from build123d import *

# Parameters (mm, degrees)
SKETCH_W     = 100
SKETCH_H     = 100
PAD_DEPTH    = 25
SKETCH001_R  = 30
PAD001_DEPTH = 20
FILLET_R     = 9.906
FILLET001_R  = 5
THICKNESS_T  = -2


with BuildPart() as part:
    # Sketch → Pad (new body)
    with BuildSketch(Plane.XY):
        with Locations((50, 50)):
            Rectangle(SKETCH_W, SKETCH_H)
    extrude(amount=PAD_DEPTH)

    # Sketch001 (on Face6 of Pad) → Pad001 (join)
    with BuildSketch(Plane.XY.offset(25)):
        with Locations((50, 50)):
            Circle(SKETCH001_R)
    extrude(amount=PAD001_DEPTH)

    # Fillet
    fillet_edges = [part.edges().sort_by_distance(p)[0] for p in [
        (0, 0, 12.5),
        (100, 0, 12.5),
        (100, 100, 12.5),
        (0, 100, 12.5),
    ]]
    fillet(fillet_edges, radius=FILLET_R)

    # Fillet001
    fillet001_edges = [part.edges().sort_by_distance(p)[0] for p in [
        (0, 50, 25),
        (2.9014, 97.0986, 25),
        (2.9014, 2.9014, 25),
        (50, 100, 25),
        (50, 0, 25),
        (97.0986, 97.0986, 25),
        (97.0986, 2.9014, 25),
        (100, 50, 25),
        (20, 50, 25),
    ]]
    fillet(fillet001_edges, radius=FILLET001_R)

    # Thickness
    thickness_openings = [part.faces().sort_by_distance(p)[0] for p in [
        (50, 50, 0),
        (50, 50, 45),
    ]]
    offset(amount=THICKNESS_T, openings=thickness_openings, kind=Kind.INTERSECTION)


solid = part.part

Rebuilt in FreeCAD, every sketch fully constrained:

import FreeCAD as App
import Part
import Sketcher
from FreeCAD import Vector
Q = App.Units.Quantity


def edges_at(feature, points):
    """Names of the edges that pass closest to the given points."""
    edges = feature.Shape.Edges
    near = lambda p: min(range(len(edges)), key=lambda i: edges[i].distToShape(Part.Vertex(*p))[0])
    return sorted({f"Edge{near(p) + 1}" for p in points})


def faces_at(feature, points):
    """Names of the faces that lie closest to the given points."""
    faces = feature.Shape.Faces
    near = lambda p: min(range(len(faces)), key=lambda i: faces[i].distToShape(Part.Vertex(*p))[0])
    return sorted({f"Face{near(p) + 1}" for p in points})

doc = App.newDocument("Part")
body = doc.addObject("PartDesign::Body", "Body")

# Sketch on XY plane
sketch1 = doc.addObject("Sketcher::SketchObject", "Sketch")
body.addObject(sketch1)
sketch1.AttachmentSupport = (doc.XY_Plane, [""])
sketch1.MapMode = "FlatFace"
sketch1.addGeometry([
    Part.LineSegment(Vector(0, 100, 0), Vector(0, 0, 0)),
    Part.LineSegment(Vector(0, 0, 0), Vector(100, 0, 0)),
    Part.LineSegment(Vector(100, 0, 0), Vector(100, 100, 0)),
    Part.LineSegment(Vector(100, 100, 0), Vector(0, 100, 0)),
], False)
sketch1.addConstraint([
    Sketcher.Constraint("Coincident", 0, 2, 1, 1),
    Sketcher.Constraint("Coincident", 1, 2, 2, 1),
    Sketcher.Constraint("Coincident", 2, 2, 3, 1),
    Sketcher.Constraint("Coincident", 3, 2, 0, 1),
    Sketcher.Constraint("Vertical", 0),
    Sketcher.Constraint("Horizontal", 1),
    Sketcher.Constraint("Vertical", 2),
    Sketcher.Constraint("Horizontal", 3),
    Sketcher.Constraint("Coincident", 0, 2, -1, 1),
    Sketcher.Constraint("Equal", 3, 0),
    Sketcher.Constraint("DistanceX", 1, 1, 1, 2, Q("100 mm")),
])
pad1 = doc.addObject("PartDesign::Pad", "Pad")
body.addObject(pad1)
pad1.Profile = sketch1
pad1.Length = 25

# Sketch on XY plane
sketch2 = doc.addObject("Sketcher::SketchObject", "Sketch001")
body.addObject(sketch2)
sketch2.AttachmentSupport = (doc.XY_Plane, [""])
sketch2.MapMode = "FlatFace"
sketch2.AttachmentOffset = App.Placement(Vector(0, 0, 25), App.Rotation())
sketch2.addGeometry(Part.Circle(Vector(50, 50, 0), Vector(0, 0, 1), 30), False)
sketch2.addConstraint([
    Sketcher.Constraint("Diameter", 0, Q("60 mm")),
    Sketcher.Constraint("DistanceX", -1, 1, 0, 3, Q("50 mm")),
    Sketcher.Constraint("DistanceY", -1, 1, 0, 3, Q("50 mm")),
])
pad2 = doc.addObject("PartDesign::Pad", "Pad001")
body.addObject(pad2)
pad2.Profile = sketch2
pad2.Length = 20
doc.recompute()

fillet = doc.addObject("PartDesign::Fillet", "Fillet")
body.addObject(fillet)
fillet.Base = (pad2, edges_at(pad2, [
    (0, 0, 12.5),
    (100, 0, 12.5),
    (100, 100, 12.5),
    (0, 100, 12.5),
]))
fillet.Radius = 9.906
doc.recompute()

fillet2 = doc.addObject("PartDesign::Fillet", "Fillet001")
body.addObject(fillet2)
fillet2.Base = (fillet, edges_at(fillet, [
    (0, 50, 25),
    (2.901, 97.099, 25),
    (2.901, 2.901, 25),
    (50, 100, 25),
    (50, 0, 25),
    (97.099, 97.099, 25),
    (97.099, 2.901, 25),
    (100, 50, 25),
    (20, 50, 25),
]))
fillet2.Radius = 5
doc.recompute()

thickness = doc.addObject("PartDesign::Thickness", "Thickness")
body.addObject(thickness)
thickness.Base = (fillet2, faces_at(fillet2, [(50, 50, 0), (50, 50, 45)]))
thickness.Value = 2
thickness.Reversed = True
thickness.Join = "Intersection"

doc.recompute()
